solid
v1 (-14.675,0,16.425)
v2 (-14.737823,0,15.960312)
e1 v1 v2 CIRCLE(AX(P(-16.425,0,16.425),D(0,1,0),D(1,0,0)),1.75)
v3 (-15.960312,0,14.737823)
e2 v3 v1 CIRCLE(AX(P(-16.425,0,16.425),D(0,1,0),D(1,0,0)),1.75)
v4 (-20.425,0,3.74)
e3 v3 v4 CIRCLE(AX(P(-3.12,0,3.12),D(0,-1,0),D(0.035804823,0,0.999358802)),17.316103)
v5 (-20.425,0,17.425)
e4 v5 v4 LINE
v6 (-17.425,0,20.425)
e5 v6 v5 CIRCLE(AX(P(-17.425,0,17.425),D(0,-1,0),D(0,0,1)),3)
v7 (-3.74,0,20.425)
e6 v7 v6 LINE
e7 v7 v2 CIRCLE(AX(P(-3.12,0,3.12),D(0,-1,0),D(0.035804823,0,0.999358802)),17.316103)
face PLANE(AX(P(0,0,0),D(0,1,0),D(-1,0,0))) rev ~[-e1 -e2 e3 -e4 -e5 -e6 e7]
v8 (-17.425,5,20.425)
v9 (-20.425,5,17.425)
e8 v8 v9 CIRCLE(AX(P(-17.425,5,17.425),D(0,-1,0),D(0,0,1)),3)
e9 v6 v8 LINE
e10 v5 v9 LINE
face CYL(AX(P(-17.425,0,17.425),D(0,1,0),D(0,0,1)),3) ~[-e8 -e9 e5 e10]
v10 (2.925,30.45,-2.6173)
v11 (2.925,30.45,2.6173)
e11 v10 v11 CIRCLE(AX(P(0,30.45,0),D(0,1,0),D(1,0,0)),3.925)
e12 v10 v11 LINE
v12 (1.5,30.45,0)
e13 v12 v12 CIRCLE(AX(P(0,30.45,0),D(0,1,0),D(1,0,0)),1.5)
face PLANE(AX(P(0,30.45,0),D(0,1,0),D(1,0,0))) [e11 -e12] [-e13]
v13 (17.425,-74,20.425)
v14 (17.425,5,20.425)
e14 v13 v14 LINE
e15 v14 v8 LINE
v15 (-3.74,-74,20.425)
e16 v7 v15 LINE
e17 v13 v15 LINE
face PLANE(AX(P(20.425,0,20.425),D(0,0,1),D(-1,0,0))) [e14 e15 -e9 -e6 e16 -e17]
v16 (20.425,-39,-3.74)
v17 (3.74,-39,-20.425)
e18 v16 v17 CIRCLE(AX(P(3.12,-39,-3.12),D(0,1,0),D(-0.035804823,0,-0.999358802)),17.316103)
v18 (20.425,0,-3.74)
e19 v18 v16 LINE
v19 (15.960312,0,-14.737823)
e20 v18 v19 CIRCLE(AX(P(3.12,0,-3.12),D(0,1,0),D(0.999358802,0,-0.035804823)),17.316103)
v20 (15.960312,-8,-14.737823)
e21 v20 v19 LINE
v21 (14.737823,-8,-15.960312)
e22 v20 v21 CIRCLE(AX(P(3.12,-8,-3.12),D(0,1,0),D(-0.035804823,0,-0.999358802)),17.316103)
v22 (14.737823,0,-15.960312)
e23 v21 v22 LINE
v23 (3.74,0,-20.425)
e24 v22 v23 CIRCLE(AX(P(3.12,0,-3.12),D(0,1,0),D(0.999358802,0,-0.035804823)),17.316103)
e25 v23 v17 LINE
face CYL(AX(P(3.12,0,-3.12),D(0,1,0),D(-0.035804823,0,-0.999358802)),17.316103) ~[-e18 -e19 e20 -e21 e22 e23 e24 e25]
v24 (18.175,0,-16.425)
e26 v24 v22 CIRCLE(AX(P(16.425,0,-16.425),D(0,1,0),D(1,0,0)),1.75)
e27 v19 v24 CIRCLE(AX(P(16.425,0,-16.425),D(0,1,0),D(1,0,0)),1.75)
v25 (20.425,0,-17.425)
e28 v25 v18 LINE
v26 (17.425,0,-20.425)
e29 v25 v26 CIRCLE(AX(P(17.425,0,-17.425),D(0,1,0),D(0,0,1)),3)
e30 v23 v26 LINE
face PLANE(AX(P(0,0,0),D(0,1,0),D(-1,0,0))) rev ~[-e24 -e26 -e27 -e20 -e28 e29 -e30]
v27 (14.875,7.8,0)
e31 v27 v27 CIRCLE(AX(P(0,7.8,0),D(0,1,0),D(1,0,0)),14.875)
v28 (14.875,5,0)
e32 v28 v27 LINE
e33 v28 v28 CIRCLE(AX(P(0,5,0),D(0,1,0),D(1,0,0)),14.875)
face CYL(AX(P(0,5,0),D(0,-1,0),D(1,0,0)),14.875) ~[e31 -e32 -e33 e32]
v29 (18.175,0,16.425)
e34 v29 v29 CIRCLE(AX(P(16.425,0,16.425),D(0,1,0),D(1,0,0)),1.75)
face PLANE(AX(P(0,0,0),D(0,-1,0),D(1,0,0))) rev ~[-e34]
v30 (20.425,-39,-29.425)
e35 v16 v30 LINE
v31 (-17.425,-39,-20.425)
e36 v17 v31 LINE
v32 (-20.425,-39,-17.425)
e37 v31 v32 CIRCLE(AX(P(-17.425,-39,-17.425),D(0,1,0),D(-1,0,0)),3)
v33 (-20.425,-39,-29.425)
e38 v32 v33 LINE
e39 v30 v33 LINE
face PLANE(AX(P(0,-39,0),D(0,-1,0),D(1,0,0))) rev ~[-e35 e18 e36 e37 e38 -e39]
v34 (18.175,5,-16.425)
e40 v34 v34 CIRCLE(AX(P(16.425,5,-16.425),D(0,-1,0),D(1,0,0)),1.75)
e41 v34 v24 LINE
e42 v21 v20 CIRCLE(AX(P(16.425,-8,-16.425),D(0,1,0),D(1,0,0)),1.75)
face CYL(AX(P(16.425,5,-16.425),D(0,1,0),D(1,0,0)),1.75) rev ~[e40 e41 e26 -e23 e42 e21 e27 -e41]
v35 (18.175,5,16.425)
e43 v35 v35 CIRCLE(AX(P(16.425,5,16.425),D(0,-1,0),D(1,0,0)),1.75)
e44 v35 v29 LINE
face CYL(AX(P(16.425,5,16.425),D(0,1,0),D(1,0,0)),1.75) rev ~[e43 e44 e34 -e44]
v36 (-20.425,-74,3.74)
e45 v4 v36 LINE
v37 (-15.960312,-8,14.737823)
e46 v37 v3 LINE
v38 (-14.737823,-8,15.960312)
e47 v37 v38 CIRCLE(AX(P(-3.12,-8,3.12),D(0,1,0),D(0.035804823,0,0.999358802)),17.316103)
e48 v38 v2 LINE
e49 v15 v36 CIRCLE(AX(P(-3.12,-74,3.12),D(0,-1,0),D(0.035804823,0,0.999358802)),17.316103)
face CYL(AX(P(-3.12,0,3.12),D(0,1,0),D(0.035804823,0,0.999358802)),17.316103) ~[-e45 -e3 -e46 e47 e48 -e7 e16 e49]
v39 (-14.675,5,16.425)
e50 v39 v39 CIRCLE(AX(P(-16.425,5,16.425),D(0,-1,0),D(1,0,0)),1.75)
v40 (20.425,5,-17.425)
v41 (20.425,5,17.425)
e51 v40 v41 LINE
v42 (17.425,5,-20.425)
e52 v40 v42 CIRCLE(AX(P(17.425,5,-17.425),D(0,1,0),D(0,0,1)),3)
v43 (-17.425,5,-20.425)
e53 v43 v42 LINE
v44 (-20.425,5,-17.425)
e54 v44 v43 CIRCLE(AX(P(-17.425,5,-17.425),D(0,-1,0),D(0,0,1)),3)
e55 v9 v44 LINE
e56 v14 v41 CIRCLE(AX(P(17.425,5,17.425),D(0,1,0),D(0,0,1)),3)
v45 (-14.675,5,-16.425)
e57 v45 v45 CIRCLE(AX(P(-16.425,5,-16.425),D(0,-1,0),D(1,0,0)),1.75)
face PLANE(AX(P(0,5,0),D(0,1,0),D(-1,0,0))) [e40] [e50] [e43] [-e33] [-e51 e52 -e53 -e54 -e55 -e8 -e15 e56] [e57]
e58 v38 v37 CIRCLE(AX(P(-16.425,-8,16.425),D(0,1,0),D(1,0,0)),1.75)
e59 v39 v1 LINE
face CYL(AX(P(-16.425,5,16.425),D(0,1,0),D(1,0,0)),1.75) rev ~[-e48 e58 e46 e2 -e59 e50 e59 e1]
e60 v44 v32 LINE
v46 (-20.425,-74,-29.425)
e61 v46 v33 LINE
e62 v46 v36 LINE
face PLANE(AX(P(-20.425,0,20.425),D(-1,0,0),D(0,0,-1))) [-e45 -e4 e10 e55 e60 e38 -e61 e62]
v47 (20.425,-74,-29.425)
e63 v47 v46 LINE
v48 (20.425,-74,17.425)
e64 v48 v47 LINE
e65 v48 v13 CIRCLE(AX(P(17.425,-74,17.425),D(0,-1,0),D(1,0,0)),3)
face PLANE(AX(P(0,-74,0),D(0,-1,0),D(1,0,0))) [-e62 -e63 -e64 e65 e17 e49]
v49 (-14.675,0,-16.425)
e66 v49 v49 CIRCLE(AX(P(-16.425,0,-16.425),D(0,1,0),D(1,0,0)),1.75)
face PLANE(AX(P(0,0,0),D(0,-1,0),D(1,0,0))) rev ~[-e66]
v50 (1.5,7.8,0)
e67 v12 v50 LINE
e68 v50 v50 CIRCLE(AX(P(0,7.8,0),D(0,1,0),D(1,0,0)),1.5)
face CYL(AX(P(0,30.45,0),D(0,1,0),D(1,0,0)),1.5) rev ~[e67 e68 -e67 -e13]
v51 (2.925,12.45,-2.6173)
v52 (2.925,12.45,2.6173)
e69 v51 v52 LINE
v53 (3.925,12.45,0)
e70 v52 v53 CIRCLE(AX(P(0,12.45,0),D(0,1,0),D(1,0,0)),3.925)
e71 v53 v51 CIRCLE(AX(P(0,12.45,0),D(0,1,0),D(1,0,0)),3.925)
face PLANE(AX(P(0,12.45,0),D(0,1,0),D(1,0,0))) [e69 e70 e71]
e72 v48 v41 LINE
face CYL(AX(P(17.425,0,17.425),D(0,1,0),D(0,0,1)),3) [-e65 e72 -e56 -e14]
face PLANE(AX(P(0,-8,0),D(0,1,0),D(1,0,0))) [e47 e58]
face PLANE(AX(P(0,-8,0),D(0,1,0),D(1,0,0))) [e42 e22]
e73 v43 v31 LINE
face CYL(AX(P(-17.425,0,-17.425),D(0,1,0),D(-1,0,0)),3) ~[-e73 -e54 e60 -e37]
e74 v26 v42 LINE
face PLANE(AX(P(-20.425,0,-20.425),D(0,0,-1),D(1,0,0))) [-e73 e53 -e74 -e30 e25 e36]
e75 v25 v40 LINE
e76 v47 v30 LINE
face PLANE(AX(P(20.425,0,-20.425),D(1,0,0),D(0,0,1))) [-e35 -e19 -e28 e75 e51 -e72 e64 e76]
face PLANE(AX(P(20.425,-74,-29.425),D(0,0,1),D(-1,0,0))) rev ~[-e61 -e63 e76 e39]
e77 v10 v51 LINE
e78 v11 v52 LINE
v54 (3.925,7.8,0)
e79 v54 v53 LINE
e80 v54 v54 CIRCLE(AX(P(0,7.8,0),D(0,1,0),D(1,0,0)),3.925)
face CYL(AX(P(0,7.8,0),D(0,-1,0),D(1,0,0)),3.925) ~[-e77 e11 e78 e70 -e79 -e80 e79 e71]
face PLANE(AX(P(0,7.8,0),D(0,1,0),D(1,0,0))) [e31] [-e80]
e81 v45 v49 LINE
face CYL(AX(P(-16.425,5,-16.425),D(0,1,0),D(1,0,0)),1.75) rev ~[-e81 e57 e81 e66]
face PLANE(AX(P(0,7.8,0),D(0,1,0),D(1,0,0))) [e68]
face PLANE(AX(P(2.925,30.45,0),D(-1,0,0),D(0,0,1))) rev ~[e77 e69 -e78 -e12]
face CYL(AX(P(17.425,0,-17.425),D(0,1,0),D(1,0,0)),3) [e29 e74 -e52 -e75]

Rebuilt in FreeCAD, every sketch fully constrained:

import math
import FreeCAD as App
import Part
import Sketcher
from FreeCAD import Vector


def edges_at(feature, points):
    """Names of the edges that pass closest to the given points."""
    edges = feature.Shape.Edges
    near = lambda p: min(range(len(edges)), key=lambda i: edges[i].distToShape(Part.Vertex(*p))[0])
    return sorted({f"Edge{near(p) + 1}" for p in points})

doc = App.newDocument("Part")
body = doc.addObject("PartDesign::Body", "Body")

# Sketch on XZ plane
sketch1 = body.newObject("Sketcher::SketchObject", "Sketch")
sketch1.AttachmentSupport = (doc.getObject("XZ_Plane"), [""])
sketch1.MapMode = "FlatFace"
sketch1.addGeometry([
    Part.LineSegment(Vector(-20.425, 20.425, 0), Vector(20.425, 20.425, 0)),
    Part.LineSegment(Vector(20.425, 20.425, 0), Vector(20.425, -20.425, 0)),
    Part.LineSegment(Vector(20.425, -20.425, 0), Vector(-20.425, -20.425, 0)),
    Part.LineSegment(Vector(-20.425, -20.425, 0), Vector(-20.425, 20.425, 0)),
], False)
sketch1.addConstraint([
    Sketcher.Constraint("Coincident", 0, 2, 1, 1),
    Sketcher.Constraint("Coincident", 1, 2, 2, 1),
    Sketcher.Constraint("Coincident", 2, 2, 3, 1),
    Sketcher.Constraint("Coincident", 3, 2, 0, 1),
    Sketcher.Constraint("Horizontal", 0),
    Sketcher.Constraint("Vertical", 1),
    Sketcher.Constraint("Horizontal", 2),
    Sketcher.Constraint("Vertical", 3),
    Sketcher.Constraint("Symmetric", 0, 2, 2, 2, -1, 1),
    Sketcher.Constraint("Equal", 2, 1),
    Sketcher.Constraint("DistanceX", 0, 1, 0, 2, 40.85),
])
pad1 = body.newObject("PartDesign::Pad", "Pad")
pad1.Profile = sketch1
pad1.Length = 5
pad1.Reversed = True

# Sketch on XZ plane
sketch2 = body.newObject("Sketcher::SketchObject", "Sketch001")
sketch2.AttachmentSupport = (doc.getObject("XZ_Plane"), [""])
sketch2.MapMode = "FlatFace"
sketch2.AttachmentOffset = App.Placement(Vector(0, 0, -5), App.Rotation())
sketch2.addGeometry([
    Part.Circle(Vector(-16.425, -16.425, 0), Vector(0, 0, 1), 1.75),
    Part.Circle(Vector(-16.425, 16.425, 0), Vector(0, 0, 1), 1.75),
    Part.Circle(Vector(16.425, 16.425, 0), Vector(0, 0, 1), 1.75),
    Part.Circle(Vector(16.425, -16.425, 0), Vector(0, 0, 1), 1.75),
], False)
sketch2.addConstraint([
    Sketcher.Constraint("Equal", 0, 1),
    Sketcher.Constraint("Equal", 1, 2),
    Sketcher.Constraint("Equal", 2, 3),
    Sketcher.Constraint("Symmetric", 0, 3, 2, 3, -1, 1),
    Sketcher.Constraint("Symmetric", 1, 3, 3, 3, -1, 1),
    Sketcher.Constraint("Symmetric", 1, 3, 2, 3, -2),
    Sketcher.Constraint("Diameter", 0, 3.5),
    Sketcher.Constraint("DistanceY", 0, 3, 1, 3, 32.85),
    Sketcher.Constraint("DistanceX", 1, 3, 2, 3, 32.85),
])
pocket1 = body.newObject("PartDesign::Pocket", "Pocket")
pocket1.Profile = sketch2
pocket1.Length = 5
pocket1.Reversed = True
doc.recompute()

fillet = body.newObject("PartDesign::Fillet", "Fillet")
fillet.Base = (pocket1, edges_at(pocket1, [
    (-20.425, 2.5, 20.425),
    (20.425, 2.5, 20.425),
    (20.425, 2.5, -20.425),
    (-20.425, 2.5, -20.425),
]))
fillet.Radius = 3

# Sketch on XZ plane
sketch3 = body.newObject("Sketcher::SketchObject", "Sketch002")
sketch3.AttachmentSupport = (doc.getObject("XZ_Plane"), [""])
sketch3.MapMode = "FlatFace"
sketch3.AttachmentOffset = App.Placement(Vector(0, 0, -5), App.Rotation())
sketch3.addGeometry(Part.Circle(Vector(0, 0, 0), Vector(0, 0, 1), 14.875), False)
sketch3.addConstraint([
    Sketcher.Constraint("Coincident", 0, 3, -1, 1),
    Sketcher.Constraint("Diameter", 0, 29.75),
])
pad2 = body.newObject("PartDesign::Pad", "Pad001")
pad2.Profile = sketch3
pad2.Length = 2.8
pad2.Reversed = True

# Sketch on XZ plane
sketch4 = body.newObject("Sketcher::SketchObject", "Sketch003")
sketch4.AttachmentSupport = (doc.getObject("XZ_Plane"), [""])
sketch4.MapMode = "FlatFace"
sketch4.AttachmentOffset = App.Placement(Vector(0, 0, -7.8), App.Rotation())
sketch4.addGeometry(Part.Circle(Vector(0, 0, 0), Vector(0, 0, 1), 3.925), False)
sketch4.addConstraint([
    Sketcher.Constraint("Coincident", 0, 3, -1, 1),
    Sketcher.Constraint("Diameter", 0, 7.85),
])
pad3 = body.newObject("PartDesign::Pad", "Pad002")
pad3.Profile = sketch4
pad3.Length = 22.65
pad3.Reversed = True

# Sketch on XZ plane
sketch5 = body.newObject("Sketcher::SketchObject", "Sketch004")
sketch5.AttachmentSupport = (doc.getObject("XZ_Plane"), [""])
sketch5.MapMode = "FlatFace"
sketch5.AttachmentOffset = App.Placement(Vector(0, 0, -30.45), App.Rotation())
sketch5.addGeometry(Part.Circle(Vector(0, 0, 0), Vector(0, 0, 1), 1.5), False)
sketch5.addConstraint([
    Sketcher.Constraint("Coincident", 0, 3, -1, 1),
    Sketcher.Constraint("Diameter", 0, 3.0),
])
pocket2 = body.newObject("PartDesign::Pocket", "Pocket001")
pocket2.Profile = sketch5
pocket2.Length = 22.65
pocket2.Reversed = True

# Sketch on XZ plane
sketch6 = body.newObject("Sketcher::SketchObject", "Sketch005")
sketch6.AttachmentSupport = (doc.getObject("XZ_Plane"), [""])
sketch6.MapMode = "FlatFace"
sketch6.addGeometry([
    Part.ArcOfCircle(Part.Circle(Vector(-17.425, -17.425, 0), Vector(0, 0, 1), 3), math.radians(180), math.radians(270)),  # 0
    Part.LineSegment(Vector(-17.425, -20.425, 0), Vector(3.74, -20.425, 0)),  # 1
    Part.ArcOfCircle(Part.Circle(Vector(3.12, -3.12, 0), Vector(0, 0, 1), 17.316103), math.radians(-87.948096), math.radians(-2.051904)),  # 2
    Part.LineSegment(Vector(20.425, -3.74, 0), Vector(20.425, 17.425, 0)),  # 3
    Part.ArcOfCircle(Part.Circle(Vector(17.425, 17.425, 0), Vector(0, 0, 1), 3), math.radians(0), math.radians(90)),  # 4
    Part.LineSegment(Vector(17.425, 20.425, 0), Vector(-3.74, 20.425, 0)),  # 5
    Part.ArcOfCircle(Part.Circle(Vector(-3.12, 3.12, 0), Vector(0, 0, 1), 17.316103), math.radians(92.051904), math.radians(177.948096)),  # 6
    Part.LineSegment(Vector(-20.425, 3.74, 0), Vector(-20.425, -17.425, 0)),  # 7
], False)
sketch6.addConstraint([
    Sketcher.Constraint("Tangent", 0, 2, 1, 1),
    Sketcher.Constraint("Coincident", 1, 2, 2, 1),
    Sketcher.Constraint("Coincident", 2, 2, 3, 1),
    Sketcher.Constraint("Tangent", 3, 2, 4, 1),
    Sketcher.Constraint("Tangent", 4, 2, 5, 1),
    Sketcher.Constraint("Coincident", 5, 2, 6, 1),
    Sketcher.Constraint("Coincident", 6, 2, 7, 1),
    Sketcher.Constraint("Tangent", 7, 2, 0, 1),
    Sketcher.Constraint("Horizontal", 1),
    Sketcher.Constraint("Vertical", 3),
    Sketcher.Constraint("Horizontal", 5),
    Sketcher.Constraint("Vertical", 7),
    Sketcher.Constraint("Equal", 0, 4),
    Sketcher.Constraint("Equal", 2, 6),
    Sketcher.Constraint("Symmetric", 0, 3, 4, 3, -1, 1),
    Sketcher.Constraint("Symmetric", 2, 3, 6, 3, -1, 1),
    Sketcher.Constraint("Equal", 5, 3),
    Sketcher.Constraint("Radius", 0, 3.0),
    Sketcher.Constraint("Radius", 2, 17.316),
    Sketcher.Constraint("DistanceX", 1, 1, 1, 2, 21.165),
    Sketcher.Constraint("DistanceX", -1, 1, 2, 3, 3.12),
    Sketcher.Constraint("DistanceY", 2, 3, -1, 1, 3.12),
])
pad4 = body.newObject("PartDesign::Pad", "Pad003")
pad4.Profile = sketch6
pad4.Length = 74

# Sketch on XZ plane
sketch7 = body.newObject("Sketcher::SketchObject", "Sketch006")
sketch7.AttachmentSupport = (doc.getObject("XZ_Plane"), [""])
sketch7.MapMode = "FlatFace"
sketch7.AttachmentOffset = App.Placement(Vector(0, 0, 74), App.Rotation())
sketch7.addGeometry([
    Part.LineSegment(Vector(-20.425, 3.74, 0), Vector(-20.425, -29.425, 0)),  # 0
    Part.LineSegment(Vector(-20.425, -29.425, 0), Vector(20.425, -29.425, 0)),  # 1
    Part.LineSegment(Vector(20.425, -29.425, 0), Vector(20.425, 17.425, 0)),  # 2
    Part.ArcOfCircle(Part.Circle(Vector(17.425, 17.425, 0), Vector(0, 0, 1), 3), math.radians(0), math.radians(90)),  # 3
    Part.LineSegment(Vector(17.425, 20.425, 0), Vector(-3.74, 20.425, 0)),  # 4
    Part.ArcOfCircle(Part.Circle(Vector(-3.12, 3.12, 0), Vector(0, 0, 1), 17.316103), math.radians(92.051904), math.radians(177.948096)),  # 5
], False)
sketch7.addConstraint([
    Sketcher.Constraint("Coincident", 0, 2, 1, 1),
    Sketcher.Constraint("Coincident", 1, 2, 2, 1),
    Sketcher.Constraint("Tangent", 2, 2, 3, 1),
    Sketcher.Constraint("Tangent", 3, 2, 4, 1),
    Sketcher.Constraint("Coincident", 4, 2, 5, 1),
    Sketcher.Constraint("Coincident", 5, 2, 0, 1),
    Sketcher.Constraint("Vertical", 0),
    Sketcher.Constraint("Horizontal", 1),
    Sketcher.Constraint("Vertical", 2),
    Sketcher.Constraint("Horizontal", 4),
    Sketcher.Constraint("Radius", 3, 3.0),
    Sketcher.Constraint("Radius", 5, 17.316),
    Sketcher.Constraint("DistanceX", 1, 1, 1, 2, 40.85),
    Sketcher.Constraint("DistanceY", 2, 1, 2, 2, 46.85),
    Sketcher.Constraint("DistanceX", 4, 2, 4, 1, 21.165),
    Sketcher.Constraint("DistanceY", 0, 2, 0, 1, 33.165),
    Sketcher.Constraint("DistanceX", 5, 3, -1, 1, 3.12),
    Sketcher.Constraint("DistanceY", -1, 1, 5, 3, 3.12),
])
pad5 = body.newObject("PartDesign::Pad", "Pad004")
pad5.Profile = sketch7
pad5.Length = 35
pad5.Reversed = True

# Sketch on XZ plane
sketch8 = body.newObject("Sketcher::SketchObject", "Sketch007")
sketch8.AttachmentSupport = (doc.getObject("XZ_Plane"), [""])
sketch8.MapMode = "FlatFace"
sketch8.AttachmentOffset = App.Placement(Vector(0, 0, -5), App.Rotation())
sketch8.addGeometry([
    Part.Circle(Vector(-16.425, 16.425, 0), Vector(0, 0, 1), 1.75),
    Part.Circle(Vector(16.425, -16.425, 0), Vector(0, 0, 1), 1.75),
], False)
sketch8.addConstraint([
    Sketcher.Constraint("Equal", 0, 1),
    Sketcher.Constraint("Symmetric", 0, 3, 1, 3, -1, 1),
    Sketcher.Constraint("Diameter", 0, 3.5),
    Sketcher.Constraint("DistanceX", 0, 3, 1, 3, 32.85),
    Sketcher.Constraint("DistanceY", 1, 3, 0, 3, 32.85),
])
pocket3 = body.newObject("PartDesign::Pocket", "Pocket002")
pocket3.Profile = sketch8
pocket3.Length = 13
pocket3.Reversed = True

# Sketch on XZ plane
sketch9 = body.newObject("Sketcher::SketchObject", "Sketch008")
sketch9.AttachmentSupport = (doc.getObject("XZ_Plane"), [""])
sketch9.MapMode = "FlatFace"
sketch9.AttachmentOffset = App.Placement(Vector(0, 0, -30.45), App.Rotation())
sketch9.addGeometry([
    Part.LineSegment(Vector(2.925, -2.6173, 0), Vector(2.925, 2.6173, 0)),
    Part.ArcOfCircle(Part.Circle(Vector(0, 0, 0), Vector(0, 0, 1), 3.925), math.radians(-41.822288), math.radians(41.822288)),
], False)
sketch9.addConstraint([
    Sketcher.Constraint("Coincident", 0, 1, 1, 1),
    Sketcher.Constraint("Coincident", 1, 2, 0, 2),
    Sketcher.Constraint("Vertical", 0),
    Sketcher.Constraint("Coincident", 1, 3, -1, 1),
    Sketcher.Constraint("Radius", 1, 3.925),
    Sketcher.Constraint("DistanceY", 0, 1, 0, 2, 5.2346),
])
pocket4 = body.newObject("PartDesign::Pocket", "Pocket003")
pocket4.Profile = sketch9
pocket4.Length = 18
pocket4.Reversed = True

doc.recompute()
